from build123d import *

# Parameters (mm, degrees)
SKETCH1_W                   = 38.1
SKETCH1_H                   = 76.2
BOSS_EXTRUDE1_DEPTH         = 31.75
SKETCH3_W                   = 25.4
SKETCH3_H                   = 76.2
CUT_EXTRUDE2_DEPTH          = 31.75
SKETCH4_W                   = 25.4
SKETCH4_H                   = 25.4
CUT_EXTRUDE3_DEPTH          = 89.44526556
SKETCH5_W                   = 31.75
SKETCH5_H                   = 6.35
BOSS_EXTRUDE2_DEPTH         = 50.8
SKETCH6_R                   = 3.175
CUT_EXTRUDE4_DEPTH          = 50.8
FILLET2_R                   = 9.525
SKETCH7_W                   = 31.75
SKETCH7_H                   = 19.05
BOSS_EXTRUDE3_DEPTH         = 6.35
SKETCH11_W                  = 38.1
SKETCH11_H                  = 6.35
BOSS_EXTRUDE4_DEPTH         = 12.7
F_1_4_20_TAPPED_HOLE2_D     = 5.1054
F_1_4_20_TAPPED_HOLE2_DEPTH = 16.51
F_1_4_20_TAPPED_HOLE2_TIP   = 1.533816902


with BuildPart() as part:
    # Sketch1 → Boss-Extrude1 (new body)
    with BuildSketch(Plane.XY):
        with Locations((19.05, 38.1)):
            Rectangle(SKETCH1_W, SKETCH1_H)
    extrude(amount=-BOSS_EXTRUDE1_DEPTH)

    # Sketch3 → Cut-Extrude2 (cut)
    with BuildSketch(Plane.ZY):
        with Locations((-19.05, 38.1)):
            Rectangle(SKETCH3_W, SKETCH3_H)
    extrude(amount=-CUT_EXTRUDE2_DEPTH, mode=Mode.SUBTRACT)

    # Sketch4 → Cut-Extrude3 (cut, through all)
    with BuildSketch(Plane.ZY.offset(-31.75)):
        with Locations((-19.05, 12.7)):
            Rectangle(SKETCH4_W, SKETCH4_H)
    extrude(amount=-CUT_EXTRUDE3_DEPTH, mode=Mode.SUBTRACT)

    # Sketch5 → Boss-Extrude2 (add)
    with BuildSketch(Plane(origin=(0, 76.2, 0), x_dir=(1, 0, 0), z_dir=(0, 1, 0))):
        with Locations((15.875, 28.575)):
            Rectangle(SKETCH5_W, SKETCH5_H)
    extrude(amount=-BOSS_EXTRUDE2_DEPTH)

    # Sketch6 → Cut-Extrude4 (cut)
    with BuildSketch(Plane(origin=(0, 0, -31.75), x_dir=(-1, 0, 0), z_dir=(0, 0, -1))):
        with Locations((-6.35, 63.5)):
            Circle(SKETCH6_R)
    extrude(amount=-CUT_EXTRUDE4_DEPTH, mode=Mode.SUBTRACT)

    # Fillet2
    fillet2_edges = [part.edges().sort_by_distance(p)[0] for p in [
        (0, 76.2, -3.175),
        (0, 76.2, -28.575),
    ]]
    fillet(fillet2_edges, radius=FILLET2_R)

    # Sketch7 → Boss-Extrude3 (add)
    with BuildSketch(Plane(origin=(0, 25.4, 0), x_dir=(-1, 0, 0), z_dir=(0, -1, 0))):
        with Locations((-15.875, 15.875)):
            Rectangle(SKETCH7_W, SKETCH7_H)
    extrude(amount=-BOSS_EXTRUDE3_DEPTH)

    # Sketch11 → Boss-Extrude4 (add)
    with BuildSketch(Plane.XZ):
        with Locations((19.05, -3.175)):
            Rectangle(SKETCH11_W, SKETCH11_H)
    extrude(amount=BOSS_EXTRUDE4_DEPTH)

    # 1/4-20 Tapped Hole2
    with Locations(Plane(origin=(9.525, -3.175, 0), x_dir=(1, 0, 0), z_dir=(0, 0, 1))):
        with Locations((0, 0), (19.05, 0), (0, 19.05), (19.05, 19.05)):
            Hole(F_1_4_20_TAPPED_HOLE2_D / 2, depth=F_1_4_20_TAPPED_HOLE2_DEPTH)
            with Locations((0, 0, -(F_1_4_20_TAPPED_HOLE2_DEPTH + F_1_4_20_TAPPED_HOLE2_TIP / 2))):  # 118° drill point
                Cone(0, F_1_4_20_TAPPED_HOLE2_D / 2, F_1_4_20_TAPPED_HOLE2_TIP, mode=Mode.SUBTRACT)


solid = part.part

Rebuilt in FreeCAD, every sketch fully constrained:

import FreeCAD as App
import Part
import Sketcher
from FreeCAD import Vector
Q = App.Units.Quantity


def edges_at(feature, points):
    """Names of the edges that pass closest to the given points."""
    edges = feature.Shape.Edges
    near = lambda p: min(range(len(edges)), key=lambda i: edges[i].distToShape(Part.Vertex(*p))[0])
    return sorted({f"Edge{near(p) + 1}" for p in points})

doc = App.newDocument("Part")
params = doc.addObject("Spreadsheet::Sheet", "Params")
for row, (alias, value) in enumerate([
    ("sketch1_height", "3 in"),
    ("sketch1_width", "1.5 in"),
    ("pad1_length", "1.25 in"),
    ("sketch2_width", "3 in"),
    ("sketch2_height", "1 in"),
    ("pocket1_length", "1.25 in"),
    ("sketch3_width", "1 in"),
    ("sketch4_width", "1.25 in"),
    ("sketch4_height", "0.25 in"),
    ("pad2_length", "2 in"),
    ("sketch5_diameter", "0.25 in"),
    ("pocket3_length", "2 in"),
    ("fillet_radius", "0.375 in"),
    ("sketch6_width", "1.25 in"),
    ("sketch6_height", "0.75 in"),
    ("pad3_length", "0.25 in"),
    ("sketch7_width", "1.5 in"),
    ("sketch7_height", "0.25 in"),
    ("pad4_length", "0.5 in"),
    ("sketch8_diameter", "0.201 in"),
    ("hole_diameter", "0.201 in"),
    ("hole_depth", "0.65 in"),
], start=1):
    params.set(f"A{row}", alias)
    params.set(f"B{row}", "=" + value)
    params.setAlias(f"B{row}", alias)

body = doc.addObject("PartDesign::Body", "Body")

# Sketch on XY plane
sketch1 = body.newObject("Sketcher::SketchObject", "Sketch")
sketch1.AttachmentSupport = (doc.getObject("XY_Plane"), [""])
sketch1.MapMode = "FlatFace"
sketch1.addGeometry([
    Part.LineSegment(Vector(0, 76.2, 0), Vector(0, 0, 0)),
    Part.LineSegment(Vector(0, 0, 0), Vector(38.1, 0, 0)),
    Part.LineSegment(Vector(38.1, 0, 0), Vector(38.1, 76.2, 0)),
    Part.LineSegment(Vector(38.1, 76.2, 0), Vector(0, 76.2, 0)),
], False)
sketch1.addConstraint([
    Sketcher.Constraint("Coincident", 0, 2, 1, 1),
    Sketcher.Constraint("Coincident", 1, 2, 2, 1),
    Sketcher.Constraint("Coincident", 2, 2, 3, 1),
    Sketcher.Constraint("Coincident", 3, 2, 0, 1),
    Sketcher.Constraint("Vertical", 0),
    Sketcher.Constraint("Horizontal", 1),
    Sketcher.Constraint("Vertical", 2),
    Sketcher.Constraint("Horizontal", 3),
    Sketcher.Constraint("Coincident", 0, 2, -1, 1),
    Sketcher.Constraint("DistanceY", 0, 2, 0, 1, Q("3 in")),
    Sketcher.Constraint("DistanceX", 1, 1, 1, 2, Q("1.5 in")),
])
sketch1.setExpression("Constraints[9]", "Params.sketch1_height")
sketch1.setExpression("Constraints[10]", "Params.sketch1_width")
pad1 = body.newObject("PartDesign::Pad", "Pad")
pad1.Profile = sketch1
pad1.setExpression("Length", "Params.pad1_length")
pad1.Reversed = True

# Sketch on YZ plane
sketch2 = body.newObject("Sketcher::SketchObject", "Sketch001")
sketch2.AttachmentSupport = (doc.getObject("YZ_Plane"), [""])
sketch2.MapMode = "FlatFace"
sketch2.addGeometry([
    Part.LineSegment(Vector(76.2, -31.75, 0), Vector(0, -31.75, 0)),
    Part.LineSegment(Vector(0, -31.75, 0), Vector(0, -6.35, 0)),
    Part.LineSegment(Vector(0, -6.35, 0), Vector(76.2, -6.35, 0)),
    Part.LineSegment(Vector(76.2, -6.35, 0), Vector(76.2, -31.75, 0)),
], False)
sketch2.addConstraint([
    Sketcher.Constraint("Coincident", 0, 2, 1, 1),
    Sketcher.Constraint("Coincident", 1, 2, 2, 1),
    Sketcher.Constraint("Coincident", 2, 2, 3, 1),
    Sketcher.Constraint("Coincident", 3, 2, 0, 1),
    Sketcher.Constraint("Horizontal", 0),
    Sketcher.Constraint("Vertical", 1),
    Sketcher.Constraint("Horizontal", 2),
    Sketcher.Constraint("Vertical", 3),
    Sketcher.Constraint("PointOnObject", 0, 2, -2),
    Sketcher.Constraint("DistanceX", 0, 2, 0, 1, Q("3 in")),
    Sketcher.Constraint("DistanceY", 1, 1, 1, 2, Q("1 in")),
    Sketcher.Constraint("DistanceY", 0, 2, -1, 1, Q("1.25 in")),
])
sketch2.setExpression("Constraints[9]", "Params.sketch2_width")
sketch2.setExpression("Constraints[10]", "Params.sketch2_height")
pocket1 = body.newObject("PartDesign::Pocket", "Pocket")
pocket1.Profile = sketch2
pocket1.setExpression("Length", "Params.pocket1_length")
pocket1.Reversed = True

# Sketch on YZ plane
sketch3 = body.newObject("Sketcher::SketchObject", "Sketch002")
sketch3.AttachmentSupport = (doc.getObject("YZ_Plane"), [""])
sketch3.MapMode = "FlatFace"
sketch3.AttachmentOffset = App.Placement(Vector(0, 0, 1.25 * 25.4), App.Rotation())
sketch3.addGeometry([
    Part.LineSegment(Vector(25.4, -31.75, 0), Vector(0, -31.75, 0)),
    Part.LineSegment(Vector(0, -31.75, 0), Vector(0, -6.35, 0)),
    Part.LineSegment(Vector(0, -6.35, 0), Vector(25.4, -6.35, 0)),
    Part.LineSegment(Vector(25.4, -6.35, 0), Vector(25.4, -31.75, 0)),
], False)
sketch3.addConstraint([
    Sketcher.Constraint("Coincident", 0, 2, 1, 1),
    Sketcher.Constraint("Coincident", 1, 2, 2, 1),
    Sketcher.Constraint("Coincident", 2, 2, 3, 1),
    Sketcher.Constraint("Coincident", 3, 2, 0, 1),
    Sketcher.Constraint("Horizontal", 0),
    Sketcher.Constraint("Vertical", 1),
    Sketcher.Constraint("Horizontal", 2),
    Sketcher.Constraint("Vertical", 3),
    Sketcher.Constraint("PointOnObject", 0, 2, -2),
    Sketcher.Constraint("Equal", 2, 1),
    Sketcher.Constraint("DistanceX", 0, 2, 0, 1, Q("1 in")),
    Sketcher.Constraint("DistanceY", 0, 2, -1, 1, Q("1.25 in")),
])
sketch3.setExpression("Constraints[10]", "Params.sketch3_width")
pocket2 = body.newObject("PartDesign::Pocket", "Pocket001")
pocket2.Profile = sketch3
pocket2.Type = "ThroughAll"
pocket2.Reversed = True

# Sketch on XZ plane
sketch4 = body.newObject("Sketcher::SketchObject", "Sketch003")
sketch4.AttachmentSupport = (doc.getObject("XZ_Plane"), [""])
sketch4.MapMode = "FlatFace"
sketch4.AttachmentOffset = App.Placement(Vector(0, 0, -3 * 25.4), App.Rotation())
sketch4.addGeometry([
    Part.LineSegment(Vector(0, -31.75, 0), Vector(0, -25.4, 0)),
    Part.LineSegment(Vector(0, -25.4, 0), Vector(31.75, -25.4, 0)),
    Part.LineSegment(Vector(31.75, -25.4, 0), Vector(31.75, -31.75, 0)),
    Part.LineSegment(Vector(31.75, -31.75, 0), Vector(0, -31.75, 0)),
], False)
sketch4.addConstraint([
    Sketcher.Constraint("Coincident", 0, 2, 1, 1),
    Sketcher.Constraint("Coincident", 1, 2, 2, 1),
    Sketcher.Constraint("Coincident", 2, 2, 3, 1),
    Sketcher.Constraint("Coincident", 3, 2, 0, 1),
    Sketcher.Constraint("Vertical", 0),
    Sketcher.Constraint("Horizontal", 1),
    Sketcher.Constraint("Vertical", 2),
    Sketcher.Constraint("Horizontal", 3),
    Sketcher.Constraint("PointOnObject", 0, 2, -2),
    Sketcher.Constraint("DistanceY", 0, 2, -1, 1, Q("1 in")),
    Sketcher.Constraint("DistanceX", 1, 1, 1, 2, Q("1.25 in")),
    Sketcher.Constraint("DistanceY", 0, 1, 0, 2, Q("0.25 in")),
])
sketch4.setExpression("Constraints[10]", "Params.sketch4_width")
sketch4.setExpression("Constraints[11]", "Params.sketch4_height")
pad2 = body.newObject("PartDesign::Pad", "Pad001")
pad2.Profile = sketch4
pad2.setExpression("Length", "Params.pad2_length")

# Sketch on XY plane
sketch5 = body.newObject("Sketcher::SketchObject", "Sketch004")
sketch5.AttachmentSupport = (doc.getObject("XY_Plane"), [""])
sketch5.MapMode = "FlatFace"
sketch5.AttachmentOffset = App.Placement(Vector(0, 0, -1.25 * 25.4), App.Rotation())
sketch5.addGeometry(Part.Circle(Vector(6.35, 63.5, 0), Vector(0, 0, 1), 3.175), False)
sketch5.addConstraint([
    Sketcher.Constraint("Diameter", 0, Q("0.25 in")),
    Sketcher.Constraint("DistanceY", -1, 1, 0, 3, Q("2.5 in")),
    Sketcher.Constraint("DistanceX", -1, 1, 0, 3, Q("0.25 in")),
])
sketch5.setExpression("Constraints[0]", "Params.sketch5_diameter")
pocket3 = body.newObject("PartDesign::Pocket", "Pocket002")
pocket3.Profile = sketch5
pocket3.setExpression("Length", "Params.pocket3_length")
pocket3.Reversed = True
doc.recompute()

fillet = body.newObject("PartDesign::Fillet", "Fillet")
fillet.Base = (pocket3, edges_at(pocket3, [(0, 76.2, -3.175), (0, 76.2, -28.575)]))
fillet.setExpression("Radius", "Params.fillet_radius")

# Sketch on XZ plane
sketch6 = body.newObject("Sketcher::SketchObject", "Sketch005")
sketch6.AttachmentSupport = (doc.getObject("XZ_Plane"), [""])
sketch6.MapMode = "FlatFace"
sketch6.AttachmentOffset = App.Placement(Vector(0, 0, -1 * 25.4), App.Rotation())
sketch6.addGeometry([
    Part.LineSegment(Vector(31.75, -25.4, 0), Vector(31.75, -6.35, 0)),
    Part.LineSegment(Vector(31.75, -6.35, 0), Vector(0, -6.35, 0)),
    Part.LineSegment(Vector(0, -6.35, 0), Vector(0, -25.4, 0)),
    Part.LineSegment(Vector(0, -25.4, 0), Vector(31.75, -25.4, 0)),
], False)
sketch6.addConstraint([
    Sketcher.Constraint("Coincident", 0, 2, 1, 1),
    Sketcher.Constraint("Coincident", 1, 2, 2, 1),
    Sketcher.Constraint("Coincident", 2, 2, 3, 1),
    Sketcher.Constraint("Coincident", 3, 2, 0, 1),
    Sketcher.Constraint("Vertical", 0),
    Sketcher.Constraint("Horizontal", 1),
    Sketcher.Constraint("Vertical", 2),
    Sketcher.Constraint("Horizontal", 3),
    Sketcher.Constraint("PointOnObject", 1, 2, -2),
    Sketcher.Constraint("DistanceY", 2, 2, -1, 1, Q("1 in")),
    Sketcher.Constraint("DistanceX", 1, 2, 1, 1, Q("1.25 in")),
    Sketcher.Constraint("DistanceY", 0, 1, 0, 2, Q("0.75 in")),
])
sketch6.setExpression("Constraints[10]", "Params.sketch6_width")
sketch6.setExpression("Constraints[11]", "Params.sketch6_height")
pad3 = body.newObject("PartDesign::Pad", "Pad002")
pad3.Profile = sketch6
pad3.setExpression("Length", "Params.pad3_length")
pad3.Reversed = True

# Sketch on XZ plane
sketch7 = body.newObject("Sketcher::SketchObject", "Sketch006")
sketch7.AttachmentSupport = (doc.getObject("XZ_Plane"), [""])
sketch7.MapMode = "FlatFace"
sketch7.addGeometry([
    Part.LineSegment(Vector(0, 0, 0), Vector(0, -6.35, 0)),
    Part.LineSegment(Vector(0, -6.35, 0), Vector(38.1, -6.35, 0)),
    Part.LineSegment(Vector(38.1, -6.35, 0), Vector(38.1, 0, 0)),
    Part.LineSegment(Vector(38.1, 0, 0), Vector(0, 0, 0)),
], False)
sketch7.addConstraint([
    Sketcher.Constraint("Coincident", 0, 2, 1, 1),
    Sketcher.Constraint("Coincident", 1, 2, 2, 1),
    Sketcher.Constraint("Coincident", 2, 2, 3, 1),
    Sketcher.Constraint("Coincident", 3, 2, 0, 1),
    Sketcher.Constraint("Vertical", 0),
    Sketcher.Constraint("Horizontal", 1),
    Sketcher.Constraint("Vertical", 2),
    Sketcher.Constraint("Horizontal", 3),
    Sketcher.Constraint("Coincident", 3, 2, -1, 1),
    Sketcher.Constraint("DistanceX", 1, 1, 1, 2, Q("1.5 in")),
    Sketcher.Constraint("DistanceY", 0, 2, 0, 1, Q("0.25 in")),
])
sketch7.setExpression("Constraints[9]", "Params.sketch7_width")
sketch7.setExpression("Constraints[10]", "Params.sketch7_height")
pad4 = body.newObject("PartDesign::Pad", "Pad003")
pad4.Profile = sketch7
pad4.setExpression("Length", "Params.pad4_length")

# Sketch on XY plane
sketch8 = body.newObject("Sketcher::SketchObject", "Sketch007")
sketch8.AttachmentSupport = (doc.getObject("XY_Plane"), [""])
sketch8.MapMode = "FlatFace"
sketch8.addGeometry([
    Part.Circle(Vector(9.525, -3.175, 0), Vector(0, 0, 1), 2.5527),
    Part.Circle(Vector(28.575, -3.175, 0), Vector(0, 0, 1), 2.5527),
    Part.Circle(Vector(9.525, 15.875, 0), Vector(0, 0, 1), 2.5527),
    Part.Circle(Vector(28.575, 15.875, 0), Vector(0, 0, 1), 2.5527),
], False)
sketch8.addConstraint([
    Sketcher.Constraint("Equal", 0, 1),
    Sketcher.Constraint("Equal", 1, 2),
    Sketcher.Constraint("Equal", 2, 3),
    Sketcher.Constraint("Horizontal", 0, 3, 1, 3),
    Sketcher.Constraint("Horizontal", 2, 3, 3, 3),
    Sketcher.Constraint("Vertical", 0, 3, 2, 3),
    Sketcher.Constraint("Vertical", 1, 3, 3, 3),
    Sketcher.Constraint("Diameter", 0, Q("0.201 in")),
    Sketcher.Constraint("DistanceX", 0, 3, 1, 3, Q("0.75 in")),
    Sketcher.Constraint("DistanceY", 0, 3, 2, 3, Q("0.75 in")),
    Sketcher.Constraint("DistanceX", -1, 1, 0, 3, Q("0.375 in")),
    Sketcher.Constraint("DistanceY", 0, 3, -1, 1, Q("0.125 in")),
])
sketch8.setExpression("Constraints[7]", "Params.sketch8_diameter")
doc.recompute()
hole = body.newObject("PartDesign::Hole", "Hole")
hole.Profile = sketch8
hole.ThreadType = "None"
hole.setExpression("Diameter", "Params.hole_diameter")
hole.DepthType = "Dimension"
hole.setExpression("Depth", "Params.hole_depth")
hole.DrillPoint = "Angled"
hole.DrillPointAngle = 118

doc.recompute()
